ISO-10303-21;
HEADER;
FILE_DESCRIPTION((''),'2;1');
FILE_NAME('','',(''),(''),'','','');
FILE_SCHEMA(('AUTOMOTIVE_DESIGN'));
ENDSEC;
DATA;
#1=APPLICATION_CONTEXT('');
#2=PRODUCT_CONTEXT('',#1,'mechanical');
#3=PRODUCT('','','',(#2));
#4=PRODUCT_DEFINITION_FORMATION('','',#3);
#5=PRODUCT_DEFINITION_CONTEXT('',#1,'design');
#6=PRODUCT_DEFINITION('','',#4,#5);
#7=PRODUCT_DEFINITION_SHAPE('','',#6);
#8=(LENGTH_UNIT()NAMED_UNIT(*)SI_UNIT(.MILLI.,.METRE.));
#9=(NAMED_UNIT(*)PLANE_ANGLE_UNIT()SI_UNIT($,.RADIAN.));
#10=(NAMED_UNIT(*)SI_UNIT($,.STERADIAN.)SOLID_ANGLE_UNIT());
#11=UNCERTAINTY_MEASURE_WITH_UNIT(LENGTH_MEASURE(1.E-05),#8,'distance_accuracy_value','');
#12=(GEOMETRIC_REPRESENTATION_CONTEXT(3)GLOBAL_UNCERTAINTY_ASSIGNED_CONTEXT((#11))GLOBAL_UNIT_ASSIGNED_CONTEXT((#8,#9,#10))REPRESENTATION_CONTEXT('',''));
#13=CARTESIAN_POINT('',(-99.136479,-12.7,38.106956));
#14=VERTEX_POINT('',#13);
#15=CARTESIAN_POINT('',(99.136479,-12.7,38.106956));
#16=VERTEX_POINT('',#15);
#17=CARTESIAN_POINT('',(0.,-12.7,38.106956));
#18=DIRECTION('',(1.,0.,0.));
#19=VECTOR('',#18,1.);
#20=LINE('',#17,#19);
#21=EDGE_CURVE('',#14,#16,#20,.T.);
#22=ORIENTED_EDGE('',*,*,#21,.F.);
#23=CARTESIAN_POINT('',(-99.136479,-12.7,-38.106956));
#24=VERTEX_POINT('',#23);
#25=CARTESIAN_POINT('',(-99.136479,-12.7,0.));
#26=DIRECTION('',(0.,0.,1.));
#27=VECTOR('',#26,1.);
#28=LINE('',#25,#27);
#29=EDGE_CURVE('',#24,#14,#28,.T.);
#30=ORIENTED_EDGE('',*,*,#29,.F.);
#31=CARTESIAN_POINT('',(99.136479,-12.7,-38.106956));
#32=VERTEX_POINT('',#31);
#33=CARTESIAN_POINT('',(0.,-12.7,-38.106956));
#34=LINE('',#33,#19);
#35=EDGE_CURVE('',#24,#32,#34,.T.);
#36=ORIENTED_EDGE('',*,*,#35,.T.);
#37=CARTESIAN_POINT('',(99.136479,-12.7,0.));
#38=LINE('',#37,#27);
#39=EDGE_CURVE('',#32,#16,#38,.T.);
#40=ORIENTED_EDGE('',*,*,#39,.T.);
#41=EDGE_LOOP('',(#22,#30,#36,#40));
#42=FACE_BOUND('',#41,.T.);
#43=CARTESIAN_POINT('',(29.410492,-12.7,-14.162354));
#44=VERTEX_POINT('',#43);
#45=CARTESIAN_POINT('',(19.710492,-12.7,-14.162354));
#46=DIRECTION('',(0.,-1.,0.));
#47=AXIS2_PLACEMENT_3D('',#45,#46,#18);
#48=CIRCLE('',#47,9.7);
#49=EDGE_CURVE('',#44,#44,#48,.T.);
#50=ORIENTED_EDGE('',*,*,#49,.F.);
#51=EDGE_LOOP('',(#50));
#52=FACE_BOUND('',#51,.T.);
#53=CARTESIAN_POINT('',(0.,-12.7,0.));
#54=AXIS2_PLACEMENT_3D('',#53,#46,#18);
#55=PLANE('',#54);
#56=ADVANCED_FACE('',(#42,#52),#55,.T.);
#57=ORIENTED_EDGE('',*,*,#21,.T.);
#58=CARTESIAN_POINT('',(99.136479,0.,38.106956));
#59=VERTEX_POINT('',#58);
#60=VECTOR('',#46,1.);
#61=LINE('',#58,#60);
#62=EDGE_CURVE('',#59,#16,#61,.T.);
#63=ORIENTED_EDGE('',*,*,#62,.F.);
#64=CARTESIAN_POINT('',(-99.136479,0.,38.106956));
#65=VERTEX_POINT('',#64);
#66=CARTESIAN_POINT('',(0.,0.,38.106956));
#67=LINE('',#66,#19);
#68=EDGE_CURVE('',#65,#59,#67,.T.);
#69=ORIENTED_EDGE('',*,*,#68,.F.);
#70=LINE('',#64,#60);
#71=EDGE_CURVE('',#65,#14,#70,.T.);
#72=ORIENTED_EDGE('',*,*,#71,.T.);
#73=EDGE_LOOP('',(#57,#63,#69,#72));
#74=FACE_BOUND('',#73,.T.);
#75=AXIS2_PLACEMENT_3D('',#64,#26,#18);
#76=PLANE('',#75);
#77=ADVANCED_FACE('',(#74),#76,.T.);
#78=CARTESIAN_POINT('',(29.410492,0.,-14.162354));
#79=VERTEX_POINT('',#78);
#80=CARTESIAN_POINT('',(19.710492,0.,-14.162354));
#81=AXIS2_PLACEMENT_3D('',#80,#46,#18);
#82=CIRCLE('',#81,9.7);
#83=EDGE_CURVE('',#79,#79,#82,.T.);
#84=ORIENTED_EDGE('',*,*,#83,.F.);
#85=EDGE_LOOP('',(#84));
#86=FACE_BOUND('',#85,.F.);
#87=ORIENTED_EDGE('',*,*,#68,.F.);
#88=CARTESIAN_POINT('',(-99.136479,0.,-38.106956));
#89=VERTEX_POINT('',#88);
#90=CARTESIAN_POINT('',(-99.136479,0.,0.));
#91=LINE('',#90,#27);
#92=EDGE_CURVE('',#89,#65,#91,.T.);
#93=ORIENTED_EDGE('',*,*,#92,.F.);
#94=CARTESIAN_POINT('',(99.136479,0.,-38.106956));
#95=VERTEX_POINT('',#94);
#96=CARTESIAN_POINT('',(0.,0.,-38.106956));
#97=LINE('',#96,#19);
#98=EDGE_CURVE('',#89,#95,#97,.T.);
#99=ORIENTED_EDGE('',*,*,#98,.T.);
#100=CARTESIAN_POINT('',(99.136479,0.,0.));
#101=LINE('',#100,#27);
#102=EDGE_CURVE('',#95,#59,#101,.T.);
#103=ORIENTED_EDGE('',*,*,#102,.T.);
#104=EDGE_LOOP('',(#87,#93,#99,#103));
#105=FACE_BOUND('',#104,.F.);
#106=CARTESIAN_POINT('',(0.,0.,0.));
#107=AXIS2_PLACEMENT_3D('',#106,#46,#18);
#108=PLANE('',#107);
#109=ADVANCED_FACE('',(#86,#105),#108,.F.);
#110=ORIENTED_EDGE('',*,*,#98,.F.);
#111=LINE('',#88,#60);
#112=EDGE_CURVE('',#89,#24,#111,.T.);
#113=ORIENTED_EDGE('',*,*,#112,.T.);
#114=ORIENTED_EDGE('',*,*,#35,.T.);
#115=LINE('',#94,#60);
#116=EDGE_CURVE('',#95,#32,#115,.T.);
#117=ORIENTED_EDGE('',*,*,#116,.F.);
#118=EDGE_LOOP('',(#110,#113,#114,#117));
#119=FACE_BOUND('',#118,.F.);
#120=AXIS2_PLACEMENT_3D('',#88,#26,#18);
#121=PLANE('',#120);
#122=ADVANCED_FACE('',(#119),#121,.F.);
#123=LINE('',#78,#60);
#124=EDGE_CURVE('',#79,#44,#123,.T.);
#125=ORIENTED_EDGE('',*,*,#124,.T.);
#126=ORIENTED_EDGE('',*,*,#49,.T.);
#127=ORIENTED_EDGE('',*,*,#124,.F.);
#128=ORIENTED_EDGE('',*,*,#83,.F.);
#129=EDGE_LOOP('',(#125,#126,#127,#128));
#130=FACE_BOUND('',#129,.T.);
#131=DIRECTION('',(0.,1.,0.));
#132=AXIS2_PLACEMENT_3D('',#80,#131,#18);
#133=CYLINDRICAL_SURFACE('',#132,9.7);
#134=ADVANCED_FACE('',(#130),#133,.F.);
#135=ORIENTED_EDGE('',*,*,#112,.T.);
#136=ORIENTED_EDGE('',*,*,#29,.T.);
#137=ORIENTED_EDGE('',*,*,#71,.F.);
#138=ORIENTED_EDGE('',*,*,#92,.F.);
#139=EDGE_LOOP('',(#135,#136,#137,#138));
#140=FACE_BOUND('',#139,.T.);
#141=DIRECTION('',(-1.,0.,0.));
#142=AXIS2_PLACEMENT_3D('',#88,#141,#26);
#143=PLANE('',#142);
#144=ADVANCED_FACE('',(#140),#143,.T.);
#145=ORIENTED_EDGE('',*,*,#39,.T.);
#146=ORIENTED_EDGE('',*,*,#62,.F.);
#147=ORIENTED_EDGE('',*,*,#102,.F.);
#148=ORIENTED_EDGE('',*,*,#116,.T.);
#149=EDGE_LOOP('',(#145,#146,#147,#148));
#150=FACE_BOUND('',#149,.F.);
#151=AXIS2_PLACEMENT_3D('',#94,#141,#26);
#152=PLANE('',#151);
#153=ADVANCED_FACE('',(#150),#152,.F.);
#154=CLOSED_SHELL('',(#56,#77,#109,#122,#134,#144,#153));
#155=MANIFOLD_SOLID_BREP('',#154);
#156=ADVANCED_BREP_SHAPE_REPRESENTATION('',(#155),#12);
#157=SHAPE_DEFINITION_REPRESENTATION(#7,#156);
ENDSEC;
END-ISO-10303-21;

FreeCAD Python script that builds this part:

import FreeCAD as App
import Part
import Sketcher

V = App.Vector
Q = App.Units.Quantity


def add_polygon(sketch, points):
    """Adds a closed chain of lines whose ends are joined by coincident constraints."""
    first, n = sketch.GeometryCount, len(points)
    for a, b in zip(points, points[1:] + points[:1]):
        sketch.addGeometry(Part.LineSegment(App.Vector(*a, 0), App.Vector(*b, 0)), False)
    for i in range(n):
        sketch.addConstraint(Sketcher.Constraint("Coincident", first + i, 2, first + (i + 1) % n, 1))

doc = App.newDocument("Part")
body = doc.addObject("PartDesign::Body", "Body")

sketch1 = doc.addObject("Sketcher::SketchObject", "Sketch")
body.addObject(sketch1)
sketch1.AttachmentSupport = (doc.XZ_Plane, [""])
sketch1.MapMode = "FlatFace"
add_polygon(sketch1, [(-99, 38), (-99, -38), (99, -38), (99, 38)])
sketch1.addGeometry(Part.Circle(V(20, -14, 0), V(0, 0, 1), 10), False)
sketch1.addConstraint(Sketcher.Constraint("Vertical", 0))
sketch1.addConstraint(Sketcher.Constraint("Horizontal", 1))
sketch1.addConstraint(Sketcher.Constraint("Vertical", 2))
sketch1.addConstraint(Sketcher.Constraint("Horizontal", 3))
sketch1.addConstraint(Sketcher.Constraint("Symmetric", 0, 2, 2, 2, -1, 1))
sketch1.addConstraint(Sketcher.Constraint("Diameter", 4, Q("19.4 mm")))
sketch1.addConstraint(Sketcher.Constraint("DistanceY", 0, 2, 0, 1, Q("76.213912 mm")))
sketch1.addConstraint(Sketcher.Constraint("DistanceY", 0, 2, 4, 3, Q("23.944602 mm")))
sketch1.addConstraint(Sketcher.Constraint("DistanceX", 1, 1, 1, 2, Q("198.272958 mm")))
sketch1.addConstraint(Sketcher.Constraint("DistanceX", -1, 1, 4, 3, Q("19.710492 mm")))
pad1 = doc.addObject("PartDesign::Pad", "Pad")
body.addObject(pad1)
pad1.Profile = sketch1
pad1.Length = 12.7

doc.recompute()
